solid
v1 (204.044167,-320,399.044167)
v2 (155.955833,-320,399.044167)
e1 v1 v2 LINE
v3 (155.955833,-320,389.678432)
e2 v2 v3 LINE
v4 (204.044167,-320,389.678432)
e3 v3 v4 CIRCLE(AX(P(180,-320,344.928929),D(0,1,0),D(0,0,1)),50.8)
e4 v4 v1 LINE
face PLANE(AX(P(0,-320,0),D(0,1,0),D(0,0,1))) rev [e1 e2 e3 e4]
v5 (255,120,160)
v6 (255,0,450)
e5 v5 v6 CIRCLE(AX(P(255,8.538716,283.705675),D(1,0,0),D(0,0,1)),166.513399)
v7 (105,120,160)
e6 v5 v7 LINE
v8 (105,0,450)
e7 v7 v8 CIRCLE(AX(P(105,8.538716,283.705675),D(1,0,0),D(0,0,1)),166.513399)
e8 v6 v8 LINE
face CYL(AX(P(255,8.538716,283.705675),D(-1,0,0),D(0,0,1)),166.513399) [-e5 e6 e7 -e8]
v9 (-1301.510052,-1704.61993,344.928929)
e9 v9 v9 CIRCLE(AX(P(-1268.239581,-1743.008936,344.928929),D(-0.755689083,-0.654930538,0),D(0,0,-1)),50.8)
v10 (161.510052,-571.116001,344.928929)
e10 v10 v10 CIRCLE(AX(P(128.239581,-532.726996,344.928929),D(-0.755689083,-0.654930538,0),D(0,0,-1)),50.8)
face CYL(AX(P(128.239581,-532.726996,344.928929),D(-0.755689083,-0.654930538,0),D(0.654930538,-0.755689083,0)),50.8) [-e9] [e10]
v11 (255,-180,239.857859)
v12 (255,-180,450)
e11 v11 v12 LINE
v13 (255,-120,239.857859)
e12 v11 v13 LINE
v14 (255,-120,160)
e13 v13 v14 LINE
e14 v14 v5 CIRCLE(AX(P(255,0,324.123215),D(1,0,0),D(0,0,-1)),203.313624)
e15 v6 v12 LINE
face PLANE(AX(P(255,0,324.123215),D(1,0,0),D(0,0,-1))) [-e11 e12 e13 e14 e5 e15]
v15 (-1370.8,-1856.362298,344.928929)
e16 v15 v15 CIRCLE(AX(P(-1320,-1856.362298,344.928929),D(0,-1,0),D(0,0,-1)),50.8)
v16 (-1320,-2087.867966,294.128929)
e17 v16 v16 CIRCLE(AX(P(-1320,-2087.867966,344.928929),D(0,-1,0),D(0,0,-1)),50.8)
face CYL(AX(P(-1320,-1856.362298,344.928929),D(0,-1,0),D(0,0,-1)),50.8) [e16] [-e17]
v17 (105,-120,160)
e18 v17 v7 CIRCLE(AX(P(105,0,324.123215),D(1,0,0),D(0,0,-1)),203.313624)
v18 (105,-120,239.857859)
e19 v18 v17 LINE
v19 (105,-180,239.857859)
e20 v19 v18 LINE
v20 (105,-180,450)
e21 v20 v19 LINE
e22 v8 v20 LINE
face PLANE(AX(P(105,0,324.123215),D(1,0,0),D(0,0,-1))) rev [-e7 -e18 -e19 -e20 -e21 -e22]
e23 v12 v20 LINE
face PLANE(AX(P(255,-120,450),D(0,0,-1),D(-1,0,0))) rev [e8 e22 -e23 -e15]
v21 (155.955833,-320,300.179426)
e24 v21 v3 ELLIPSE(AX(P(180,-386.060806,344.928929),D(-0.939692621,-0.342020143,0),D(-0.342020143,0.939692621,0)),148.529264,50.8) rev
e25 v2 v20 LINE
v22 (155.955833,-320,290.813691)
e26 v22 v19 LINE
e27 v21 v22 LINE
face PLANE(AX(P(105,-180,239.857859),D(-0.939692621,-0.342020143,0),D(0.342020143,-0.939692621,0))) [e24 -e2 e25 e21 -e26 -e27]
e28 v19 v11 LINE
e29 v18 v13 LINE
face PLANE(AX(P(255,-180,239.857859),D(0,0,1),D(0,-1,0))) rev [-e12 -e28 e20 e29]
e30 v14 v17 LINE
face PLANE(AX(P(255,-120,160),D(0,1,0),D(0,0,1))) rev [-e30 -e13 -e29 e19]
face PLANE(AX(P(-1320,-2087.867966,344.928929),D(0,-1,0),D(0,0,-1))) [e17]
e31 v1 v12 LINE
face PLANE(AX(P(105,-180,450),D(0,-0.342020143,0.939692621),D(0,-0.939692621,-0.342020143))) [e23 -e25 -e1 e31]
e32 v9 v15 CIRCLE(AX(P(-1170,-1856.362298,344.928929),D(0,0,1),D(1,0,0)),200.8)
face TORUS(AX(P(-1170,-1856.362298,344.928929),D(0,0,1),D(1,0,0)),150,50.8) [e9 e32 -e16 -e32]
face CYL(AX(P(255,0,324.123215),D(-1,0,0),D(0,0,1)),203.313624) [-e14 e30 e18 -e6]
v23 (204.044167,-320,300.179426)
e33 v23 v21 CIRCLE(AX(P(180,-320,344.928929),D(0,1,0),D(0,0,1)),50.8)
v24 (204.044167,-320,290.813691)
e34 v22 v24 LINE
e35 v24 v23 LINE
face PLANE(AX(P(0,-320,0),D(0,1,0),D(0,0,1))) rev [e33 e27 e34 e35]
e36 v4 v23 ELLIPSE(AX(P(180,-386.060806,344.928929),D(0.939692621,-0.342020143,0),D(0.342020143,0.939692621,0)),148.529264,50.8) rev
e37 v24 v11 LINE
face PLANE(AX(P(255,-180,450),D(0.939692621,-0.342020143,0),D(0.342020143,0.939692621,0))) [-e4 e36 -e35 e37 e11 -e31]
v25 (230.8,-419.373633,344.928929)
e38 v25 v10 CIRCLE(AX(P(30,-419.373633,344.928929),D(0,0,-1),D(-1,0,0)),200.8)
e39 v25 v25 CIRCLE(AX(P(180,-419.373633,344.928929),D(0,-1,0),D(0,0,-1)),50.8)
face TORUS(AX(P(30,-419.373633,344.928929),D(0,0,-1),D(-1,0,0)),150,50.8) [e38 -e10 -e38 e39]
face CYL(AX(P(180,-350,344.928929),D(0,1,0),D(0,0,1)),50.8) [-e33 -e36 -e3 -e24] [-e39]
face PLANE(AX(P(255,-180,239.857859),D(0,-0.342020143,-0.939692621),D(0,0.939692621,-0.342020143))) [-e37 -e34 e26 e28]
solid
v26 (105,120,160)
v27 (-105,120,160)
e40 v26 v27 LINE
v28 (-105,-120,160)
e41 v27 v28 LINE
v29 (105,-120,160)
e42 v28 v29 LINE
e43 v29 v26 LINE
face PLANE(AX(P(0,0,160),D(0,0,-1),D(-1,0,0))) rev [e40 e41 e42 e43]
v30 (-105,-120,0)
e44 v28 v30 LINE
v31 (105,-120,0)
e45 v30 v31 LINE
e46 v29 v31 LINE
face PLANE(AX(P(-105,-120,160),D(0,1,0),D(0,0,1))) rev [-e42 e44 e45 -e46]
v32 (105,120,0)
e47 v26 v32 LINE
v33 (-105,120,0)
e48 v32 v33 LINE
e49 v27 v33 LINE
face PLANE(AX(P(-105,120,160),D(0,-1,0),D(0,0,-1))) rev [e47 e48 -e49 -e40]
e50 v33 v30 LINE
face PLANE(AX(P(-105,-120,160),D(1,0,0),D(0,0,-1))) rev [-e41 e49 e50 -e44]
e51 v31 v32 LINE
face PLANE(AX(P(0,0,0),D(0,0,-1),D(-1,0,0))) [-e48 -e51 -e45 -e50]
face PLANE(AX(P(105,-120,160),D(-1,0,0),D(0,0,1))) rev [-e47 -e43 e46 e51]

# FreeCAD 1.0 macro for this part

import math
import FreeCAD as App
import Part
import Sketcher


def add_polygon(sketch, points):
    """Adds a closed chain of lines whose ends are joined by coincident constraints."""
    first, n = sketch.GeometryCount, len(points)
    for a, b in zip(points, points[1:] + points[:1]):
        sketch.addGeometry(Part.LineSegment(App.Vector(*a, 0), App.Vector(*b, 0)), False)
    for i in range(n):
        sketch.addConstraint(Sketcher.Constraint("Coincident", first + i, 2, first + (i + 1) % n, 1))

doc = App.newDocument("Part")
params = doc.addObject("Spreadsheet::Sheet", "Params")
for row, (alias, value) in enumerate([
    ("sketch1_width", "210 mm"),
    ("sketch1_height", "240 mm"),
    ("pad1_length", "160 mm"),
    ("sketch2_width", "120 mm"),
    ("sketch2_height", "290 mm"),
    ("pad2_length", "150 mm"),
    ("sketch3_width", "150 mm"),
    ("pad3_length", "60 mm"),
    ("sketch4_diameter", "101.6 mm"),
    ("pad4_length", "170 mm"),
    ("sketch5_width", "150 mm"),
    ("pad5_length", "140 mm"),
    ("pad5_taper", "-20 deg"),
    ("sketch6_diameter", "101.6 mm"),
    ("sketch7_radius", "150 mm"),
    ("sketch8_diameter", "101.6 mm"),
    ("pad6_length", "100 mm"),
], start=1):
    params.set(f"A{row}", alias)
    params.set(f"B{row}", "=" + value)
    params.setAlias(f"B{row}", alias)

body = doc.addObject("PartDesign::Body", "Body")

sketch1 = doc.addObject("Sketcher::SketchObject", "Sketch")
body.addObject(sketch1)
sketch1.AttachmentSupport = (doc.XY_Plane, [""])
sketch1.MapMode = "FlatFace"
add_polygon(sketch1, [(-105, 120), (-105, -120), (105, -120), (105, 120)])
sketch1.addConstraint(Sketcher.Constraint("Vertical", 0))
sketch1.addConstraint(Sketcher.Constraint("Horizontal", 1))
sketch1.addConstraint(Sketcher.Constraint("Vertical", 2))
sketch1.addConstraint(Sketcher.Constraint("Horizontal", 3))
sketch1.addConstraint(Sketcher.Constraint("Symmetric", 0, 2, 2, 2, -1, 1))
sketch1.addConstraint(Sketcher.Constraint("DistanceX", 1, 1, 1, 2, 210.0))
sketch1.addConstraint(Sketcher.Constraint("DistanceY", 0, 2, 0, 1, 240.0))
sketch1.setExpression("Constraints[9]", "Params.sketch1_width")
sketch1.setExpression("Constraints[10]", "Params.sketch1_height")
pad1 = doc.addObject("PartDesign::Pad", "Pad")
body.addObject(pad1)
pad1.Profile = sketch1
pad1.setExpression("Length", "Params.pad1_length")
body2 = doc.addObject("PartDesign::Body", "Body001")

sketch2 = doc.addObject("Sketcher::SketchObject", "Sketch001")
body2.addObject(sketch2)
sketch2.AttachmentSupport = (doc.getObject("YZ_Plane001"), [""])
sketch2.MapMode = "FlatFace"
sketch2.AttachmentOffset = App.Placement(App.Vector(0, 0, 105), App.Rotation())
sketch2.addGeometry(Part.LineSegment(App.Vector(-120, 450, 0), App.Vector(-120, 160, 0)), False)
sketch2.addGeometry(Part.ArcOfCircle(Part.Circle(App.Vector(0, 324, 0), App.Vector(0, 0, 1), 203), math.radians(-126), math.radians(-54)), False)
sketch2.addGeometry(Part.ArcOfCircle(Part.Circle(App.Vector(9, 284, 0), App.Vector(0, 0, 1), 167), math.radians(-48), math.radians(93)), False)
sketch2.addGeometry(Part.LineSegment(App.Vector(0, 450, 0), App.Vector(-120, 450, 0)), False)
sketch2.addConstraint(Sketcher.Constraint("Coincident", 0, 2, 1, 1))
sketch2.addConstraint(Sketcher.Constraint("Coincident", 1, 2, 2, 1))
sketch2.addConstraint(Sketcher.Constraint("Coincident", 2, 2, 3, 1))
sketch2.addConstraint(Sketcher.Constraint("Coincident", 3, 2, 0, 1))
sketch2.addConstraint(Sketcher.Constraint("Vertical", 0))
sketch2.addConstraint(Sketcher.Constraint("Horizontal", 3))
sketch2.addConstraint(Sketcher.Constraint("Symmetric", 0, 2, 1, 2, -2))
sketch2.addConstraint(Sketcher.Constraint("PointOnObject", 2, 2, -2))
sketch2.addConstraint(Sketcher.Constraint("DistanceX", 3, 2, 3, 1, 120.0))
sketch2.addConstraint(Sketcher.Constraint("DistanceY", 0, 2, 0, 1, 290.0))
sketch2.addConstraint(Sketcher.Constraint("DistanceY", -1, 1, 0, 2, 160.0))
sketch2.addConstraint(Sketcher.Constraint("Radius", 2, 166.513399))
sketch2.addConstraint(Sketcher.Constraint("Radius", 1, 203.313624))
sketch2.setExpression("Constraints[8]", "Params.sketch2_width")
sketch2.setExpression("Constraints[9]", "Params.sketch2_height")
pad2 = doc.addObject("PartDesign::Pad", "Pad001")
body2.addObject(pad2)
pad2.Profile = sketch2
pad2.setExpression("Length", "Params.pad2_length")

sketch3 = doc.addObject("Sketcher::SketchObject", "Sketch002")
body2.addObject(sketch3)
sketch3.AttachmentSupport = (doc.getObject("XZ_Plane001"), [""])
sketch3.MapMode = "FlatFace"
sketch3.AttachmentOffset = App.Placement(App.Vector(0, 0, 120), App.Rotation())
add_polygon(sketch3, [(105, 450), (105, 240), (255, 240), (255, 450)])
sketch3.addConstraint(Sketcher.Constraint("Vertical", 0))
sketch3.addConstraint(Sketcher.Constraint("Horizontal", 1))
sketch3.addConstraint(Sketcher.Constraint("Vertical", 2))
sketch3.addConstraint(Sketcher.Constraint("Horizontal", 3))
sketch3.addConstraint(Sketcher.Constraint("DistanceX", 1, 1, 1, 2, 150.0))
sketch3.addConstraint(Sketcher.Constraint("DistanceX", -1, 1, 0, 2, 105.0))
sketch3.addConstraint(Sketcher.Constraint("DistanceY", -1, 1, 2, 2, 450.0))
sketch3.addConstraint(Sketcher.Constraint("DistanceY", 0, 2, 0, 1, 210.142141))
sketch3.setExpression("Constraints[8]", "Params.sketch3_width")
pad3 = doc.addObject("PartDesign::Pad", "Pad002")
body2.addObject(pad3)
pad3.Profile = sketch3
pad3.setExpression("Length", "Params.pad3_length")

sketch4 = doc.addObject("Sketcher::SketchObject", "Sketch003")
body2.addObject(sketch4)
sketch4.AttachmentSupport = (doc.getObject("XZ_Plane001"), [""])
sketch4.MapMode = "FlatFace"
sketch4.AttachmentOffset = App.Placement(App.Vector(0, 0, 180), App.Rotation())
sketch4.addGeometry(Part.Circle(App.Vector(180, 345, 0), App.Vector(0, 0, 1), 51), False)
sketch4.addConstraint(Sketcher.Constraint("Diameter", 0, 101.6))
sketch4.addConstraint(Sketcher.Constraint("DistanceX", -1, 1, 0, 3, 180.0))
sketch4.addConstraint(Sketcher.Constraint("DistanceY", -1, 1, 0, 3, 344.928929))
sketch4.setExpression("Constraints[0]", "Params.sketch4_diameter")
pad4 = doc.addObject("PartDesign::Pad", "Pad003")
body2.addObject(pad4)
pad4.Profile = sketch4
pad4.setExpression("Length", "Params.pad4_length")

sketch5 = doc.addObject("Sketcher::SketchObject", "Sketch004")
body2.addObject(sketch5)
sketch5.AttachmentSupport = (doc.getObject("XZ_Plane001"), [""])
sketch5.MapMode = "FlatFace"
sketch5.AttachmentOffset = App.Placement(App.Vector(0, 0, 180), App.Rotation())
add_polygon(sketch5, [(105, 450), (105, 240), (255, 240), (255, 450)])
sketch5.addConstraint(Sketcher.Constraint("Vertical", 0))
sketch5.addConstraint(Sketcher.Constraint("Horizontal", 1))
sketch5.addConstraint(Sketcher.Constraint("Vertical", 2))
sketch5.addConstraint(Sketcher.Constraint("Horizontal", 3))
sketch5.addConstraint(Sketcher.Constraint("DistanceX", 1, 1, 1, 2, 150.0))
sketch5.addConstraint(Sketcher.Constraint("DistanceX", -1, 1, 0, 2, 105.0))
sketch5.addConstraint(Sketcher.Constraint("DistanceY", -1, 1, 2, 2, 450.0))
sketch5.addConstraint(Sketcher.Constraint("DistanceY", 0, 2, 0, 1, 210.142141))
sketch5.setExpression("Constraints[8]", "Params.sketch5_width")
pad5 = doc.addObject("PartDesign::Pad", "Pad004")
body2.addObject(pad5)
pad5.Profile = sketch5
pad5.setExpression("Length", "Params.pad5_length")
pad5.setExpression("TaperAngle", "Params.pad5_taper")

sketch6 = doc.addObject("Sketcher::SketchObject", "Sketch005")
body2.addObject(sketch6)
sketch6.AttachmentSupport = (doc.getObject("XZ_Plane001"), [""])
sketch6.MapMode = "FlatFace"
sketch6.AttachmentOffset = App.Placement(App.Vector(0, 0, 350), App.Rotation())
sketch6.addGeometry(Part.Circle(App.Vector(180, 345, 0), App.Vector(0, 0, 1), 51), False)
sketch6.addConstraint(Sketcher.Constraint("Diameter", 0, 101.6))
sketch6.addConstraint(Sketcher.Constraint("DistanceX", -1, 1, 0, 3, 180.0))
sketch6.addConstraint(Sketcher.Constraint("DistanceY", -1, 1, 0, 3, 344.928929))
sketch6.setExpression("Constraints[0]", "Params.sketch6_diameter")

sketch7 = doc.addObject("Sketcher::SketchObject", "Sketch006")
body2.addObject(sketch7)
sketch7.AttachmentSupport = (doc.getObject("XY_Plane001"), [""])
sketch7.MapMode = "FlatFace"
sketch7.AttachmentOffset = App.Placement(App.Vector(0, 0, 344.928929), App.Rotation())
sketch7.addGeometry(Part.LineSegment(App.Vector(180, -350, 0), App.Vector(180, -419, 0)), False)
sketch7.addGeometry(Part.ArcOfCircle(Part.Circle(App.Vector(30, -419, 0), App.Vector(0, 0, 1), 150), math.radians(-49), math.radians(0)), False)
sketch7.addGeometry(Part.LineSegment(App.Vector(128, -533, 0), App.Vector(-1268, -1743, 0)), False)
sketch7.addGeometry(Part.ArcOfCircle(Part.Circle(App.Vector(-1170, -1856, 0), App.Vector(0, 0, 1), 150), math.radians(131), math.radians(180)), False)
sketch7.addGeometry(Part.LineSegment(App.Vector(-1320, -1856, 0), App.Vector(-1320, -1988, 0)), False)
sketch7.addConstraint(Sketcher.Constraint("Tangent", 0, 2, 1, 2))
sketch7.addConstraint(Sketcher.Constraint("Tangent", 1, 1, 2, 1))
sketch7.addConstraint(Sketcher.Constraint("Tangent", 2, 2, 3, 1))
sketch7.addConstraint(Sketcher.Constraint("Tangent", 3, 2, 4, 1))
sketch7.addConstraint(Sketcher.Constraint("Vertical", 0))
sketch7.addConstraint(Sketcher.Constraint("Vertical", 4))
sketch7.addConstraint(Sketcher.Constraint("Equal", 1, 3))
sketch7.addConstraint(Sketcher.Constraint("Radius", 1, 150.0))
sketch7.addConstraint(Sketcher.Constraint("DistanceX", -1, 1, 1, 3, 30.0))
sketch7.addConstraint(Sketcher.Constraint("DistanceX", 3, 3, -1, 1, 1170.0))
sketch7.addConstraint(Sketcher.Constraint("DistanceY", 0, 1, -1, 1, 350.0))
sketch7.addConstraint(Sketcher.Constraint("DistanceY", 3, 3, -1, 1, 1856.362298))
sketch7.addConstraint(Sketcher.Constraint("Distance", 2, 1847.954659))
sketch7.addConstraint(Sketcher.Constraint("DistanceY", 4, 2, 4, 1, 131.505668))
sketch7.setExpression("Constraints[7]", "Params.sketch7_radius")
doc.recompute()

additivepipe = doc.addObject("PartDesign::AdditivePipe", "AdditivePipe")
body2.addObject(additivepipe)
additivepipe.Profile = sketch6
additivepipe.Spine = (sketch7, ["Edge1", "Edge2", "Edge3", "Edge4", "Edge5"])

sketch8 = doc.addObject("Sketcher::SketchObject", "Sketch007")
body2.addObject(sketch8)
sketch8.AttachmentSupport = (doc.getObject("XZ_Plane001"), [""])
sketch8.MapMode = "FlatFace"
sketch8.AttachmentOffset = App.Placement(App.Vector(0, 0, 1987.867966), App.Rotation())
sketch8.addGeometry(Part.Circle(App.Vector(-1320, 345, 0), App.Vector(0, 0, 1), 51), False)
sketch8.addConstraint(Sketcher.Constraint("Diameter", 0, 101.6))
sketch8.addConstraint(Sketcher.Constraint("DistanceX", 0, 3, -1, 1, 1320.0))
sketch8.addConstraint(Sketcher.Constraint("DistanceY", -1, 1, 0, 3, 344.928929))
sketch8.setExpression("Constraints[0]", "Params.sketch8_diameter")
pad6 = doc.addObject("PartDesign::Pad", "Pad005")
body2.addObject(pad6)
pad6.Profile = sketch8
pad6.setExpression("Length", "Params.pad6_length")

doc.recompute()
